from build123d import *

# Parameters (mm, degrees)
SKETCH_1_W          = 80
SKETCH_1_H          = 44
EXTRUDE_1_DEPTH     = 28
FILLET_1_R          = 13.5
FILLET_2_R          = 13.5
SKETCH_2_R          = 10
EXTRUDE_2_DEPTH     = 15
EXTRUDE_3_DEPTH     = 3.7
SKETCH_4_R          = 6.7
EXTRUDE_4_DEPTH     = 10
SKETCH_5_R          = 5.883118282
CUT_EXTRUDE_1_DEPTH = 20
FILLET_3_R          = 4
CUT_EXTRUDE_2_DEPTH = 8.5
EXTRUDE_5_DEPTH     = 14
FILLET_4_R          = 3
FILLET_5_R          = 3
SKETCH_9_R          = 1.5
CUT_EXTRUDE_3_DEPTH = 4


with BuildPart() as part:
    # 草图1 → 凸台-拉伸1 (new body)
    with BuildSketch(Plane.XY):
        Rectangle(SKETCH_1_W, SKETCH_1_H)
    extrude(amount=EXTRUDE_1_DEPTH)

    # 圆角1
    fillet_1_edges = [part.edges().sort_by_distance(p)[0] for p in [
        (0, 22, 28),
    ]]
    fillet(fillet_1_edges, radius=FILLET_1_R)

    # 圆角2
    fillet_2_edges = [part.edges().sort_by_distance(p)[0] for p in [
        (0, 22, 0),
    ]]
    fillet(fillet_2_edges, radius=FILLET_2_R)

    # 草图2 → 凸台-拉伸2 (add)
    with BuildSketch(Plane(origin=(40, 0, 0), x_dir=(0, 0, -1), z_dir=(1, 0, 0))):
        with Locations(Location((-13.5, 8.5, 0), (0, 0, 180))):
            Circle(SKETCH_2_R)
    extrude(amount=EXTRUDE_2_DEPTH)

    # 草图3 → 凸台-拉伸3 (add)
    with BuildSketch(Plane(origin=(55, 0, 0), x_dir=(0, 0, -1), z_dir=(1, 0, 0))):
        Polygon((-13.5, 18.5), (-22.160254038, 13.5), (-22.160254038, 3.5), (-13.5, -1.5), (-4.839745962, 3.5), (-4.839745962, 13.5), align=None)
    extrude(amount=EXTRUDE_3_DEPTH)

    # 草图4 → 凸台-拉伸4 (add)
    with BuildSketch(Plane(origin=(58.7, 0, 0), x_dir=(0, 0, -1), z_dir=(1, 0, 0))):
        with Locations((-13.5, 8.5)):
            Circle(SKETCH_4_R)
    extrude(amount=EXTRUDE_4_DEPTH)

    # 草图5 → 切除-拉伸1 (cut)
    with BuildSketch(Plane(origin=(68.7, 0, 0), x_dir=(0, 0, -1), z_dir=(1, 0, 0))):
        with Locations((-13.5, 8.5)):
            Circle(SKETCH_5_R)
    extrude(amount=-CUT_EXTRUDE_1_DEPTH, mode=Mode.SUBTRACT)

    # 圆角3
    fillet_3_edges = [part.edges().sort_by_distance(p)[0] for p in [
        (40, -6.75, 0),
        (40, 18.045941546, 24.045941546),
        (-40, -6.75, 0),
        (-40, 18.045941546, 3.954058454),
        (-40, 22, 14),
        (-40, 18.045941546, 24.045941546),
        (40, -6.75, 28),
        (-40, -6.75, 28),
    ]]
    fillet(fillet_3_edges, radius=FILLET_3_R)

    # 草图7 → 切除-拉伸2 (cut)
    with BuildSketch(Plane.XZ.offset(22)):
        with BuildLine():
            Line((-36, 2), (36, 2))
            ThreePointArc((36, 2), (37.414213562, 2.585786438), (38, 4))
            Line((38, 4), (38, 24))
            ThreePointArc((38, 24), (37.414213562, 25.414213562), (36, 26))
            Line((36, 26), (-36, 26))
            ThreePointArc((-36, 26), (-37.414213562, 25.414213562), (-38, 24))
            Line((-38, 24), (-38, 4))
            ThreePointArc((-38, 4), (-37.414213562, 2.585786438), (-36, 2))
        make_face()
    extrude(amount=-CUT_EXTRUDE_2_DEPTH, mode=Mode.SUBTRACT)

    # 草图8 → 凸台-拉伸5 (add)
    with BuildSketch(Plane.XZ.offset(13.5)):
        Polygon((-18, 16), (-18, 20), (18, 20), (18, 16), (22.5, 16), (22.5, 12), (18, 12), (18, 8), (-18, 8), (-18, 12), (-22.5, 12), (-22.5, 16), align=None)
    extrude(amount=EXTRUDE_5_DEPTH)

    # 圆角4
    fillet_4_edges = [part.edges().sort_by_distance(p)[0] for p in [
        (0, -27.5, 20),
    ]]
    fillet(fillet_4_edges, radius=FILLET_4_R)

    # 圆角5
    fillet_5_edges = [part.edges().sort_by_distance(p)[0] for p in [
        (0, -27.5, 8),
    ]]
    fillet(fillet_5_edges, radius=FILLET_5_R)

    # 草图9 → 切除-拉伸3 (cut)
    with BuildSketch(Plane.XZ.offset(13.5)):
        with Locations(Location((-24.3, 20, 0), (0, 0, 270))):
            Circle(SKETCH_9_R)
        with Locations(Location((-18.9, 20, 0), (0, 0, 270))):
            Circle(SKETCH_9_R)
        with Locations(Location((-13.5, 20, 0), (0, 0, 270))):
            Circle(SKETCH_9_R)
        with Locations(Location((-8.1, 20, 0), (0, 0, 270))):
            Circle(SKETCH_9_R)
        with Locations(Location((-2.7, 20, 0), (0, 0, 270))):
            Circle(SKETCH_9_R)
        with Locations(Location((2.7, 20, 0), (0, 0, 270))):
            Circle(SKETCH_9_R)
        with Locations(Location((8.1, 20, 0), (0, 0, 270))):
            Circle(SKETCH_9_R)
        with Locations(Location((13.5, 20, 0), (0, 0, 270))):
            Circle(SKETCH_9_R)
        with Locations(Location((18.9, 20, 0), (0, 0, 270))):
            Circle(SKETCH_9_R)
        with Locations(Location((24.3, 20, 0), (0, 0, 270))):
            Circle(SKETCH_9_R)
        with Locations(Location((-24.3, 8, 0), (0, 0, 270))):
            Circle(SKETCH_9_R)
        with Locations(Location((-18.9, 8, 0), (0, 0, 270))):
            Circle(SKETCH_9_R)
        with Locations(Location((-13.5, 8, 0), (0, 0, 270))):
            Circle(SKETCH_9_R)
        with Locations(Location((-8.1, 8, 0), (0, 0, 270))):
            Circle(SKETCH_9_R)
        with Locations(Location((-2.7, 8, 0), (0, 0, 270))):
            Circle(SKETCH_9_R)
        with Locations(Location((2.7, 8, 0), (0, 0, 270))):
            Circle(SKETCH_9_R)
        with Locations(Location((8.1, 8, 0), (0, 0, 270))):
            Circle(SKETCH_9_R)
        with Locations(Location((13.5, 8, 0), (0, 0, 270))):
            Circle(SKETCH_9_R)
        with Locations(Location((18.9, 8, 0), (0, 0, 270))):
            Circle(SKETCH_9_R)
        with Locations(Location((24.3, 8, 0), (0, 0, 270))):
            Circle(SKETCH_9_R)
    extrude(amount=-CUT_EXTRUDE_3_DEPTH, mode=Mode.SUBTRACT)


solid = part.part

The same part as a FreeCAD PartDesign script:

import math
import FreeCAD as App
import Part
import Sketcher
Q = App.Units.Quantity


def edges_at(feature, points):
    """Names of the edges that pass closest to the given points."""
    edges = feature.Shape.Edges
    near = lambda p: min(range(len(edges)), key=lambda i: edges[i].distToShape(Part.Vertex(*p))[0])
    return sorted({f"Edge{near(p) + 1}" for p in points})


def add_polygon(sketch, points):
    """Adds a closed chain of lines whose ends are joined by coincident constraints."""
    first, n = sketch.GeometryCount, len(points)
    for a, b in zip(points, points[1:] + points[:1]):
        sketch.addGeometry(Part.LineSegment(App.Vector(*a, 0), App.Vector(*b, 0)), False)
    for i in range(n):
        sketch.addConstraint(Sketcher.Constraint("Coincident", first + i, 2, first + (i + 1) % n, 1))

doc = App.newDocument("Part")
params = doc.addObject("Spreadsheet::Sheet", "Params")
for row, (alias, value) in enumerate([
    ("sketch1_width", "80 mm"),
    ("sketch1_height", "44 mm"),
    ("pad1_length", "28 mm"),
    ("fillet_radius", "13.5 mm"),
    ("fillet2_radius", "13.5 mm"),
    ("sketch2_diameter", "20 mm"),
    ("pad2_length", "15 mm"),
    ("sketch3_width", "10 mm"),
    ("sketch3_length", "10 mm"),
    ("pad3_length", "3.7 mm"),
    ("sketch4_diameter", "13.4 mm"),
    ("pad4_length", "10 mm"),
    ("pocket1_length", "20 mm"),
    ("fillet3_radius", "4 mm"),
    ("sketch6_radius", "2 mm"),
    ("sketch6_width", "72 mm"),
    ("sketch6_height", "20 mm"),
    ("pocket2_length", "8.5 mm"),
    ("sketch7_width", "36 mm"),
    ("sketch7_height", "4 mm"),
    ("sketch7_width2", "4.5 mm"),
    ("pad5_length", "14 mm"),
    ("fillet4_radius", "3 mm"),
    ("fillet5_radius", "3 mm"),
    ("sketch8_diameter", "3 mm"),
    ("pocket3_length", "4 mm"),
], start=1):
    params.set(f"A{row}", alias)
    params.set(f"B{row}", "=" + value)
    params.setAlias(f"B{row}", alias)

body = doc.addObject("PartDesign::Body", "Body")

# Sketch on XY plane
sketch1 = body.newObject("Sketcher::SketchObject", "Sketch")
sketch1.AttachmentSupport = (doc.getObject("XY_Plane"), [""])
sketch1.MapMode = "FlatFace"
add_polygon(sketch1, [(-40, 22), (-40, -22), (40, -22), (40, 22)])  # lines 0-3
sketch1.addConstraint([
    Sketcher.Constraint("Vertical", 0),
    Sketcher.Constraint("Horizontal", 1),
    Sketcher.Constraint("Vertical", 2),
    Sketcher.Constraint("Horizontal", 3),
    Sketcher.Constraint("Symmetric", 0, 2, 2, 2, -1, 1),
    Sketcher.Constraint("DistanceX", 1, 1, 1, 2, Q("80 mm")),
    Sketcher.Constraint("DistanceY", 0, 2, 0, 1, Q("44 mm")),
])
sketch1.setExpression("Constraints[9]", "Params.sketch1_width")
sketch1.setExpression("Constraints[10]", "Params.sketch1_height")
pad1 = body.newObject("PartDesign::Pad", "Pad")
pad1.Profile = sketch1
pad1.setExpression("Length", "Params.pad1_length")
doc.recompute()

fillet = body.newObject("PartDesign::Fillet", "Fillet")
fillet.Base = (pad1, edges_at(pad1, [(0, 22, 28)]))
fillet.setExpression("Radius", "Params.fillet_radius")
doc.recompute()

fillet2 = body.newObject("PartDesign::Fillet", "Fillet001")
fillet2.Base = (fillet, edges_at(fillet, [(0, 22, 0)]))
fillet2.setExpression("Radius", "Params.fillet2_radius")

# Sketch on YZ plane
sketch2 = body.newObject("Sketcher::SketchObject", "Sketch001")
sketch2.AttachmentSupport = (doc.getObject("YZ_Plane"), [""])
sketch2.MapMode = "FlatFace"
sketch2.AttachmentOffset = App.Placement(App.Vector(0, 0, 40), App.Rotation())
sketch2.addGeometry(Part.Circle(App.Vector(8, 14, 0), App.Vector(0, 0, 1), 10), False)
sketch2.addConstraint([
    Sketcher.Constraint("Diameter", 0, Q("20 mm")),
    Sketcher.Constraint("DistanceX", -1, 1, 0, 3, Q("8.5 mm")),
    Sketcher.Constraint("DistanceY", -1, 1, 0, 3, Q("13.5 mm")),
])
sketch2.setExpression("Constraints[0]", "Params.sketch2_diameter")
pad2 = body.newObject("PartDesign::Pad", "Pad001")
pad2.Profile = sketch2
pad2.setExpression("Length", "Params.pad2_length")

# Sketch on YZ plane
sketch3 = body.newObject("Sketcher::SketchObject", "Sketch002")
sketch3.AttachmentSupport = (doc.getObject("YZ_Plane"), [""])
sketch3.MapMode = "FlatFace"
sketch3.AttachmentOffset = App.Placement(App.Vector(0, 0, 55), App.Rotation())
add_polygon(sketch3, [(18, 14), (14, 22), (4, 22), (-2, 14), (4, 5), (14, 5)])  # lines 0-5
sketch3.addConstraint([
    Sketcher.Constraint("Horizontal", 1),
    Sketcher.Constraint("Horizontal", 4),
    Sketcher.Constraint("Parallel", 0, 3),
    Sketcher.Constraint("Parallel", 2, 5),
    Sketcher.Constraint("Horizontal", 2, 2, 5, 2),
    Sketcher.Constraint("Vertical", 1, 2, 3, 2),
    Sketcher.Constraint("Vertical", 0, 2, 4, 2),
    Sketcher.Constraint("DistanceX", 1, 2, 1, 1, Q("10 mm")),
    Sketcher.Constraint("Angle", 0, Q("120 deg")),
    Sketcher.Constraint("Distance", 0, Q("10 mm")),
    Sketcher.Constraint("DistanceX", -1, 1, 0, 2, Q("13.5 mm")),
    Sketcher.Constraint("DistanceY", -1, 1, 2, 2, Q("13.5 mm")),
])
sketch3.setExpression("Constraints[13]", "Params.sketch3_width")
sketch3.setExpression("Constraints[15]", "Params.sketch3_length")
pad3 = body.newObject("PartDesign::Pad", "Pad002")
pad3.Profile = sketch3
pad3.setExpression("Length", "Params.pad3_length")

# Sketch on YZ plane
sketch4 = body.newObject("Sketcher::SketchObject", "Sketch003")
sketch4.AttachmentSupport = (doc.getObject("YZ_Plane"), [""])
sketch4.MapMode = "FlatFace"
sketch4.AttachmentOffset = App.Placement(App.Vector(0, 0, 58.7), App.Rotation())
sketch4.addGeometry(Part.Circle(App.Vector(8, 14, 0), App.Vector(0, 0, 1), 7), False)
sketch4.addConstraint([
    Sketcher.Constraint("Diameter", 0, Q("13.4 mm")),
    Sketcher.Constraint("DistanceX", -1, 1, 0, 3, Q("8.5 mm")),
    Sketcher.Constraint("DistanceY", -1, 1, 0, 3, Q("13.5 mm")),
])
sketch4.setExpression("Constraints[0]", "Params.sketch4_diameter")
pad4 = body.newObject("PartDesign::Pad", "Pad003")
pad4.Profile = sketch4
pad4.setExpression("Length", "Params.pad4_length")

# Sketch on YZ plane
sketch5 = body.newObject("Sketcher::SketchObject", "Sketch004")
sketch5.AttachmentSupport = (doc.getObject("YZ_Plane"), [""])
sketch5.MapMode = "FlatFace"
sketch5.AttachmentOffset = App.Placement(App.Vector(0, 0, 68.7), App.Rotation())
sketch5.addGeometry(Part.Circle(App.Vector(8, 14, 0), App.Vector(0, 0, 1), 6), False)
sketch5.addConstraint([
    Sketcher.Constraint("DistanceX", -1, 1, 0, 3, Q("8.5 mm")),
    Sketcher.Constraint("DistanceY", -1, 1, 0, 3, Q("13.5 mm")),
    Sketcher.Constraint("Diameter", 0, Q("11.766237 mm")),
])
pocket1 = body.newObject("PartDesign::Pocket", "Pocket")
pocket1.Profile = sketch5
pocket1.setExpression("Length", "Params.pocket1_length")
doc.recompute()

fillet3 = body.newObject("PartDesign::Fillet", "Fillet002")
fillet3.Base = (pocket1, edges_at(pocket1, [
    (40, -6.75, 0),
    (40, 18.046, 24.046),
    (-40, -6.75, 0),
    (-40, 18.046, 3.954),
    (-40, 22, 14),
    (-40, 18.046, 24.046),
    (40, -6.75, 28),
    (-40, -6.75, 28),
]))
fillet3.setExpression("Radius", "Params.fillet3_radius")

# Sketch on XZ plane
sketch6 = body.newObject("Sketcher::SketchObject", "Sketch005")
sketch6.AttachmentSupport = (doc.getObject("XZ_Plane"), [""])
sketch6.MapMode = "FlatFace"
sketch6.AttachmentOffset = App.Placement(App.Vector(0, 0, 22), App.Rotation())
sketch6.addGeometry([
    Part.LineSegment(App.Vector(-36, 2, 0), App.Vector(36, 2, 0)),  # 0
    Part.ArcOfCircle(Part.Circle(App.Vector(36, 4, 0), App.Vector(0, 0, 1), 2), math.radians(-90), math.radians(0)),  # 1
    Part.LineSegment(App.Vector(38, 4, 0), App.Vector(38, 24, 0)),  # 2
    Part.ArcOfCircle(Part.Circle(App.Vector(36, 24, 0), App.Vector(0, 0, 1), 2), math.radians(0), math.radians(90)),  # 3
    Part.LineSegment(App.Vector(36, 26, 0), App.Vector(-36, 26, 0)),  # 4
    Part.ArcOfCircle(Part.Circle(App.Vector(-36, 24, 0), App.Vector(0, 0, 1), 2), math.radians(90), math.radians(180)),  # 5
    Part.LineSegment(App.Vector(-38, 24, 0), App.Vector(-38, 4, 0)),  # 6
    Part.ArcOfCircle(Part.Circle(App.Vector(-36, 4, 0), App.Vector(0, 0, 1), 2), math.radians(-180), math.radians(-90)),  # 7
], False)
sketch6.addConstraint([
    Sketcher.Constraint("Tangent", 0, 2, 1, 1),
    Sketcher.Constraint("Tangent", 1, 2, 2, 1),
    Sketcher.Constraint("Tangent", 2, 2, 3, 1),
    Sketcher.Constraint("Tangent", 3, 2, 4, 1),
    Sketcher.Constraint("Tangent", 4, 2, 5, 1),
    Sketcher.Constraint("Tangent", 5, 2, 6, 1),
    Sketcher.Constraint("Tangent", 6, 2, 7, 1),
    Sketcher.Constraint("Tangent", 7, 2, 0, 1),
    Sketcher.Constraint("Horizontal", 0),
    Sketcher.Constraint("Vertical", 2),
    Sketcher.Constraint("Horizontal", 4),
    Sketcher.Constraint("Vertical", 6),
    Sketcher.Constraint("Equal", 1, 3),
    Sketcher.Constraint("Equal", 3, 5),
    Sketcher.Constraint("Equal", 5, 7),
    Sketcher.Constraint("Radius", 1, Q("2 mm")),
    Sketcher.Constraint("DistanceX", 0, 1, 0, 2, Q("72 mm")),
    Sketcher.Constraint("DistanceY", 2, 1, 2, 2, Q("20 mm")),
    Sketcher.Constraint("DistanceX", -1, 1, 1, 3, Q("36 mm")),
    Sketcher.Constraint("DistanceY", -1, 1, 1, 3, Q("4 mm")),
])
sketch6.setExpression("Constraints[15]", "Params.sketch6_radius")
sketch6.setExpression("Constraints[16]", "Params.sketch6_width")
sketch6.setExpression("Constraints[17]", "Params.sketch6_height")
pocket2 = body.newObject("PartDesign::Pocket", "Pocket001")
pocket2.Profile = sketch6
pocket2.setExpression("Length", "Params.pocket2_length")

# Sketch on XZ plane
sketch7 = body.newObject("Sketcher::SketchObject", "Sketch006")
sketch7.AttachmentSupport = (doc.getObject("XZ_Plane"), [""])
sketch7.MapMode = "FlatFace"
sketch7.AttachmentOffset = App.Placement(App.Vector(0, 0, 13.5), App.Rotation())
add_polygon(sketch7, [(-18, 20), (-18, 16), (-22.5, 16), (-22.5, 12), (-18, 12), (-18, 8), (18, 8), (18, 12), (22.5, 12), (22.5, 16), (18, 16), (18, 20)])  # lines 0-11
sketch7.addConstraint([
    Sketcher.Constraint("Vertical", 0),
    Sketcher.Constraint("Horizontal", 1),
    Sketcher.Constraint("Vertical", 2),
    Sketcher.Constraint("Horizontal", 3),
    Sketcher.Constraint("Vertical", 4),
    Sketcher.Constraint("Horizontal", 5),
    Sketcher.Constraint("Vertical", 6),
    Sketcher.Constraint("Horizontal", 7),
    Sketcher.Constraint("Vertical", 8),
    Sketcher.Constraint("Horizontal", 9),
    Sketcher.Constraint("Vertical", 10),
    Sketcher.Constraint("Horizontal", 11),
    Sketcher.Constraint("Symmetric", 3, 2, 6, 2, -2),
    Sketcher.Constraint("Symmetric", 1, 2, 8, 2, -2),
    Sketcher.Constraint("Vertical", 0, 2, 3, 2),
    Sketcher.Constraint("Vertical", 6, 2, 9, 2),
    Sketcher.Constraint("Equal", 0, 2),
    Sketcher.Constraint("Equal", 2, 4),
    Sketcher.Constraint("DistanceX", 5, 1, 5, 2, Q("36 mm")),
    Sketcher.Constraint("DistanceY", 0, 2, 0, 1, Q("4 mm")),
    Sketcher.Constraint("DistanceX", 1, 2, 1, 1, Q("4.5 mm")),
    Sketcher.Constraint("DistanceY", -1, 1, 0, 2, Q("16 mm")),
])
sketch7.setExpression("Constraints[30]", "Params.sketch7_width")
sketch7.setExpression("Constraints[31]", "Params.sketch7_height")
sketch7.setExpression("Constraints[32]", "Params.sketch7_width2")
pad5 = body.newObject("PartDesign::Pad", "Pad004")
pad5.Profile = sketch7
pad5.setExpression("Length", "Params.pad5_length")
doc.recompute()

fillet4 = body.newObject("PartDesign::Fillet", "Fillet003")
fillet4.Base = (pad5, edges_at(pad5, [(0, -27.5, 20)]))
fillet4.setExpression("Radius", "Params.fillet4_radius")
doc.recompute()

fillet5 = body.newObject("PartDesign::Fillet", "Fillet004")
fillet5.Base = (fillet4, edges_at(fillet4, [(0, -27.5, 8)]))
fillet5.setExpression("Radius", "Params.fillet5_radius")

# Sketch on XZ plane
sketch8 = body.newObject("Sketcher::SketchObject", "Sketch007")
sketch8.AttachmentSupport = (doc.getObject("XZ_Plane"), [""])
sketch8.MapMode = "FlatFace"
sketch8.AttachmentOffset = App.Placement(App.Vector(0, 0, 13.5), App.Rotation())
sketch8.addGeometry([
    Part.Circle(App.Vector(-24.3, 20, 0), App.Vector(0, 0, 1), 1.5),  # 0
    Part.Circle(App.Vector(-18.9, 20, 0), App.Vector(0, 0, 1), 1.5),  # 1
    Part.Circle(App.Vector(-13.5, 20, 0), App.Vector(0, 0, 1), 1.5),  # 2
    Part.Circle(App.Vector(-8.1, 20, 0), App.Vector(0, 0, 1), 1.5),  # 3
    Part.Circle(App.Vector(-2.7, 20, 0), App.Vector(0, 0, 1), 1.5),  # 4
    Part.Circle(App.Vector(2.7, 20, 0), App.Vector(0, 0, 1), 1.5),  # 5
    Part.Circle(App.Vector(8.1, 20, 0), App.Vector(0, 0, 1), 1.5),  # 6
    Part.Circle(App.Vector(13.5, 20, 0), App.Vector(0, 0, 1), 1.5),  # 7
    Part.Circle(App.Vector(18.9, 20, 0), App.Vector(0, 0, 1), 1.5),  # 8
    Part.Circle(App.Vector(24.3, 20, 0), App.Vector(0, 0, 1), 1.5),  # 9
    Part.Circle(App.Vector(-24.3, 8, 0), App.Vector(0, 0, 1), 1.5),  # 10
    Part.Circle(App.Vector(-18.9, 8, 0), App.Vector(0, 0, 1), 1.5),  # 11
    Part.Circle(App.Vector(-13.5, 8, 0), App.Vector(0, 0, 1), 1.5),  # 12
    Part.Circle(App.Vector(-8.1, 8, 0), App.Vector(0, 0, 1), 1.5),  # 13
    Part.Circle(App.Vector(-2.7, 8, 0), App.Vector(0, 0, 1), 1.5),  # 14
    Part.Circle(App.Vector(2.7, 8, 0), App.Vector(0, 0, 1), 1.5),  # 15
    Part.Circle(App.Vector(8.1, 8, 0), App.Vector(0, 0, 1), 1.5),  # 16
    Part.Circle(App.Vector(13.5, 8, 0), App.Vector(0, 0, 1), 1.5),  # 17
    Part.Circle(App.Vector(18.9, 8, 0), App.Vector(0, 0, 1), 1.5),  # 18
    Part.Circle(App.Vector(24.3, 8, 0), App.Vector(0, 0, 1), 1.5),  # 19
], False)
sketch8.addConstraint([
    Sketcher.Constraint("Equal", 0, 1),
    Sketcher.Constraint("Equal", 1, 2),
    Sketcher.Constraint("Equal", 2, 3),
    Sketcher.Constraint("Equal", 3, 4),
    Sketcher.Constraint("Equal", 4, 5),
    Sketcher.Constraint("Equal", 5, 6),
    Sketcher.Constraint("Equal", 6, 7),
    Sketcher.Constraint("Equal", 7, 8),
    Sketcher.Constraint("Equal", 8, 9),
    Sketcher.Constraint("Equal", 9, 10),
    Sketcher.Constraint("Equal", 10, 11),
    Sketcher.Constraint("Equal", 11, 12),
    Sketcher.Constraint("Equal", 12, 13),
    Sketcher.Constraint("Equal", 13, 14),
    Sketcher.Constraint("Equal", 14, 15),
    Sketcher.Constraint("Equal", 15, 16),
    Sketcher.Constraint("Equal", 16, 17),
    Sketcher.Constraint("Equal", 17, 18),
    Sketcher.Constraint("Equal", 18, 19),
    Sketcher.Constraint("Symmetric", 4, 3, 5, 3, -2),
    Sketcher.Constraint("Symmetric", 3, 3, 6, 3, -2),
    Sketcher.Constraint("Symmetric", 2, 3, 7, 3, -2),
    Sketcher.Constraint("Symmetric", 1, 3, 8, 3, -2),
    Sketcher.Constraint("Symmetric", 0, 3, 9, 3, -2),
    Sketcher.Constraint("Symmetric", 14, 3, 15, 3, -2),
    Sketcher.Constraint("Symmetric", 13, 3, 16, 3, -2),
    Sketcher.Constraint("Symmetric", 12, 3, 17, 3, -2),
    Sketcher.Constraint("Symmetric", 11, 3, 18, 3, -2),
    Sketcher.Constraint("Symmetric", 10, 3, 19, 3, -2),
    Sketcher.Constraint("Horizontal", 0, 3, 1, 3),
    Sketcher.Constraint("Horizontal", 1, 3, 2, 3),
    Sketcher.Constraint("Horizontal", 2, 3, 3, 3),
    Sketcher.Constraint("Horizontal", 3, 3, 4, 3),
    Sketcher.Constraint("Horizontal", 10, 3, 11, 3),
    Sketcher.Constraint("Horizontal", 11, 3, 12, 3),
    Sketcher.Constraint("Horizontal", 12, 3, 13, 3),
    Sketcher.Constraint("Horizontal", 13, 3, 14, 3),
    Sketcher.Constraint("Vertical", 0, 3, 10, 3),
    Sketcher.Constraint("Vertical", 1, 3, 11, 3),
    Sketcher.Constraint("Vertical", 2, 3, 12, 3),
    Sketcher.Constraint("Vertical", 3, 3, 13, 3),
    Sketcher.Constraint("Vertical", 4, 3, 14, 3),
    Sketcher.Constraint("Diameter", 0, Q("3 mm")),
    Sketcher.Constraint("DistanceY", -1, 1, 0, 3, Q("20 mm")),
    Sketcher.Constraint("DistanceY", -1, 1, 10, 3, Q("8 mm")),
    Sketcher.Constraint("DistanceX", 0, 3, 5, 3, Q("27 mm")),
    Sketcher.Constraint("DistanceX", 1, 3, 6, 3, Q("27 mm")),
    Sketcher.Constraint("DistanceX", 2, 3, 7, 3, Q("27 mm")),
    Sketcher.Constraint("DistanceX", 0, 3, -1, 1, Q("24.3 mm")),
    Sketcher.Constraint("DistanceX", 1, 3, -1, 1, Q("18.9 mm")),
])
sketch8.setExpression("Constraints[42]", "Params.sketch8_diameter")
pocket3 = body.newObject("PartDesign::Pocket", "Pocket002")
pocket3.Profile = sketch8
pocket3.setExpression("Length", "Params.pocket3_length")

doc.recompute()
